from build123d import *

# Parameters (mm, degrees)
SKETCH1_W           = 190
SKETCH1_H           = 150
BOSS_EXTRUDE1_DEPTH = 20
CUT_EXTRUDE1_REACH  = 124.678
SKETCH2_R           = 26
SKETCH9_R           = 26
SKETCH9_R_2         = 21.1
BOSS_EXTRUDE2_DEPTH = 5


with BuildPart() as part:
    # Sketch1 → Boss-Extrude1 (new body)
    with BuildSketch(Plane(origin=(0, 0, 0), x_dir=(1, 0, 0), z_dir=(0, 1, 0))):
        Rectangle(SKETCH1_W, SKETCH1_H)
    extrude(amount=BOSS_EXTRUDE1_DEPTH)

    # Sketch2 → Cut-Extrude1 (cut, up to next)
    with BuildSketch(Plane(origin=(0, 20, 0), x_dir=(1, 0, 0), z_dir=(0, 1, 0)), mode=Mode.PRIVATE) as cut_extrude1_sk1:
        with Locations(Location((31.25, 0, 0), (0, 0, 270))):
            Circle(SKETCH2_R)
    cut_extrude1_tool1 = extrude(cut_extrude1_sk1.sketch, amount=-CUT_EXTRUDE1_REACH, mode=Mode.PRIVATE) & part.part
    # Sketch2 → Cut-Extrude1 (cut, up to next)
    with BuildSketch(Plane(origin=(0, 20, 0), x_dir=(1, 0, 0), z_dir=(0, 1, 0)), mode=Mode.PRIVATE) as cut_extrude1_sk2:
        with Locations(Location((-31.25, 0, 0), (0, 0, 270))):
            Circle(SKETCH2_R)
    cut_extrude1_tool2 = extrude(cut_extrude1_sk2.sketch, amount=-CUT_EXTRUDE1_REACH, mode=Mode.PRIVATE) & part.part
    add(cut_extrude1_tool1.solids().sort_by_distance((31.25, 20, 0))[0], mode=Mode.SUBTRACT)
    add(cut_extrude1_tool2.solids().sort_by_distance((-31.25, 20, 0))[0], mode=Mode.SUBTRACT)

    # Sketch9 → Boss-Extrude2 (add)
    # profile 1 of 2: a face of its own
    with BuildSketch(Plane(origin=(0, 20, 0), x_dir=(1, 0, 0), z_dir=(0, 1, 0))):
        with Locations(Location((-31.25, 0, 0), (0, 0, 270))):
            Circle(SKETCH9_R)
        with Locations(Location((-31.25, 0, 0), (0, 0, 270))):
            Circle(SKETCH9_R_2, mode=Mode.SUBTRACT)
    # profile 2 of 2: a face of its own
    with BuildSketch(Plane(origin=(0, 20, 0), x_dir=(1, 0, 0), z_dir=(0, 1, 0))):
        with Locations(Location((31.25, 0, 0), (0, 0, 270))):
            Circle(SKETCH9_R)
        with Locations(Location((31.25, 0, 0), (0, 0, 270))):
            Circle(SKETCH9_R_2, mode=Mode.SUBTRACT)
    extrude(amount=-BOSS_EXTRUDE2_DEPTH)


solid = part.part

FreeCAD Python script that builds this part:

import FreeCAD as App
import Part
import Sketcher
Q = App.Units.Quantity

doc = App.newDocument("Part")
body = doc.addObject("PartDesign::Body", "Body")

# Sketch on XZ plane
sketch1 = body.newObject("Sketcher::SketchObject", "Sketch")
sketch1.AttachmentSupport = (doc.getObject("XZ_Plane"), [""])
sketch1.MapMode = "FlatFace"
sketch1.addGeometry([
    Part.LineSegment(App.Vector(-95, -75, 0), App.Vector(-95, 75, 0)),
    Part.LineSegment(App.Vector(-95, 75, 0), App.Vector(95, 75, 0)),
    Part.LineSegment(App.Vector(95, 75, 0), App.Vector(95, -75, 0)),
    Part.LineSegment(App.Vector(95, -75, 0), App.Vector(-95, -75, 0)),
], False)
sketch1.addConstraint([
    Sketcher.Constraint("Coincident", 0, 2, 1, 1),
    Sketcher.Constraint("Coincident", 1, 2, 2, 1),
    Sketcher.Constraint("Coincident", 2, 2, 3, 1),
    Sketcher.Constraint("Coincident", 3, 2, 0, 1),
    Sketcher.Constraint("Vertical", 0),
    Sketcher.Constraint("Horizontal", 1),
    Sketcher.Constraint("Vertical", 2),
    Sketcher.Constraint("Horizontal", 3),
    Sketcher.Constraint("Symmetric", 0, 2, 2, 2, -1, 1),
    Sketcher.Constraint("DistanceX", 1, 1, 1, 2, Q("190 mm")),
    Sketcher.Constraint("DistanceY", 0, 1, 0, 2, Q("150 mm")),
])
pad1 = body.newObject("PartDesign::Pad", "Pad")
pad1.Profile = sketch1
pad1.Length = 20
pad1.Reversed = True

# Sketch on XZ plane
sketch2 = body.newObject("Sketcher::SketchObject", "Sketch001")
sketch2.AttachmentSupport = (doc.getObject("XZ_Plane"), [""])
sketch2.MapMode = "FlatFace"
sketch2.AttachmentOffset = App.Placement(App.Vector(0, 0, -20), App.Rotation())
sketch2.addGeometry(Part.Circle(App.Vector(31, 0, 0), App.Vector(0, 0, 1), 26), False)
sketch2.addConstraint([
    Sketcher.Constraint("PointOnObject", 0, 3, -1),
    Sketcher.Constraint("Diameter", 0, Q("52 mm")),
    Sketcher.Constraint("DistanceX", -1, 1, 0, 3, Q("31.25 mm")),
])
pocket1 = body.newObject("PartDesign::Pocket", "Pocket")
pocket1.Profile = sketch2
pocket1.Type = "UpToFirst"
pocket1.Reversed = True

# Sketch on XZ plane
sketch3 = body.newObject("Sketcher::SketchObject", "Sketch002")
sketch3.AttachmentSupport = (doc.getObject("XZ_Plane"), [""])
sketch3.MapMode = "FlatFace"
sketch3.AttachmentOffset = App.Placement(App.Vector(0, 0, -20), App.Rotation())
sketch3.addGeometry(Part.Circle(App.Vector(-31, 0, 0), App.Vector(0, 0, 1), 26), False)
sketch3.addConstraint([
    Sketcher.Constraint("PointOnObject", 0, 3, -1),
    Sketcher.Constraint("Diameter", 0, Q("52 mm")),
    Sketcher.Constraint("DistanceX", 0, 3, -1, 1, Q("31.25 mm")),
])
pocket2 = body.newObject("PartDesign::Pocket", "Pocket001")
pocket2.Profile = sketch3
pocket2.Type = "UpToFirst"
pocket2.Reversed = True

# Sketch on XZ plane
sketch4 = body.newObject("Sketcher::SketchObject", "Sketch003")
sketch4.AttachmentSupport = (doc.getObject("XZ_Plane"), [""])
sketch4.MapMode = "FlatFace"
sketch4.AttachmentOffset = App.Placement(App.Vector(0, 0, -20), App.Rotation())
sketch4.addGeometry([
    Part.Circle(App.Vector(-31, 0, 0), App.Vector(0, 0, 1), 26),
    Part.Circle(App.Vector(-31, 0, 0), App.Vector(0, 0, 1), 21),
    Part.Circle(App.Vector(31, 0, 0), App.Vector(0, 0, 1), 26),
    Part.Circle(App.Vector(31, 0, 0), App.Vector(0, 0, 1), 21),
], False)
sketch4.addConstraint([
    Sketcher.Constraint("Coincident", 1, 3, 0, 3),
    Sketcher.Constraint("Coincident", 3, 3, 2, 3),
    Sketcher.Constraint("Equal", 0, 2),
    Sketcher.Constraint("Equal", 1, 3),
    Sketcher.Constraint("Symmetric", 0, 3, 2, 3, -1, 1),
    Sketcher.Constraint("PointOnObject", 0, 3, -1),
    Sketcher.Constraint("Diameter", 0, Q("52 mm")),
    Sketcher.Constraint("Diameter", 1, Q("42.2 mm")),
    Sketcher.Constraint("DistanceX", 0, 3, 2, 3, Q("62.5 mm")),
])
pad2 = body.newObject("PartDesign::Pad", "Pad001")
pad2.Profile = sketch4
pad2.Length = 5

doc.recompute()
